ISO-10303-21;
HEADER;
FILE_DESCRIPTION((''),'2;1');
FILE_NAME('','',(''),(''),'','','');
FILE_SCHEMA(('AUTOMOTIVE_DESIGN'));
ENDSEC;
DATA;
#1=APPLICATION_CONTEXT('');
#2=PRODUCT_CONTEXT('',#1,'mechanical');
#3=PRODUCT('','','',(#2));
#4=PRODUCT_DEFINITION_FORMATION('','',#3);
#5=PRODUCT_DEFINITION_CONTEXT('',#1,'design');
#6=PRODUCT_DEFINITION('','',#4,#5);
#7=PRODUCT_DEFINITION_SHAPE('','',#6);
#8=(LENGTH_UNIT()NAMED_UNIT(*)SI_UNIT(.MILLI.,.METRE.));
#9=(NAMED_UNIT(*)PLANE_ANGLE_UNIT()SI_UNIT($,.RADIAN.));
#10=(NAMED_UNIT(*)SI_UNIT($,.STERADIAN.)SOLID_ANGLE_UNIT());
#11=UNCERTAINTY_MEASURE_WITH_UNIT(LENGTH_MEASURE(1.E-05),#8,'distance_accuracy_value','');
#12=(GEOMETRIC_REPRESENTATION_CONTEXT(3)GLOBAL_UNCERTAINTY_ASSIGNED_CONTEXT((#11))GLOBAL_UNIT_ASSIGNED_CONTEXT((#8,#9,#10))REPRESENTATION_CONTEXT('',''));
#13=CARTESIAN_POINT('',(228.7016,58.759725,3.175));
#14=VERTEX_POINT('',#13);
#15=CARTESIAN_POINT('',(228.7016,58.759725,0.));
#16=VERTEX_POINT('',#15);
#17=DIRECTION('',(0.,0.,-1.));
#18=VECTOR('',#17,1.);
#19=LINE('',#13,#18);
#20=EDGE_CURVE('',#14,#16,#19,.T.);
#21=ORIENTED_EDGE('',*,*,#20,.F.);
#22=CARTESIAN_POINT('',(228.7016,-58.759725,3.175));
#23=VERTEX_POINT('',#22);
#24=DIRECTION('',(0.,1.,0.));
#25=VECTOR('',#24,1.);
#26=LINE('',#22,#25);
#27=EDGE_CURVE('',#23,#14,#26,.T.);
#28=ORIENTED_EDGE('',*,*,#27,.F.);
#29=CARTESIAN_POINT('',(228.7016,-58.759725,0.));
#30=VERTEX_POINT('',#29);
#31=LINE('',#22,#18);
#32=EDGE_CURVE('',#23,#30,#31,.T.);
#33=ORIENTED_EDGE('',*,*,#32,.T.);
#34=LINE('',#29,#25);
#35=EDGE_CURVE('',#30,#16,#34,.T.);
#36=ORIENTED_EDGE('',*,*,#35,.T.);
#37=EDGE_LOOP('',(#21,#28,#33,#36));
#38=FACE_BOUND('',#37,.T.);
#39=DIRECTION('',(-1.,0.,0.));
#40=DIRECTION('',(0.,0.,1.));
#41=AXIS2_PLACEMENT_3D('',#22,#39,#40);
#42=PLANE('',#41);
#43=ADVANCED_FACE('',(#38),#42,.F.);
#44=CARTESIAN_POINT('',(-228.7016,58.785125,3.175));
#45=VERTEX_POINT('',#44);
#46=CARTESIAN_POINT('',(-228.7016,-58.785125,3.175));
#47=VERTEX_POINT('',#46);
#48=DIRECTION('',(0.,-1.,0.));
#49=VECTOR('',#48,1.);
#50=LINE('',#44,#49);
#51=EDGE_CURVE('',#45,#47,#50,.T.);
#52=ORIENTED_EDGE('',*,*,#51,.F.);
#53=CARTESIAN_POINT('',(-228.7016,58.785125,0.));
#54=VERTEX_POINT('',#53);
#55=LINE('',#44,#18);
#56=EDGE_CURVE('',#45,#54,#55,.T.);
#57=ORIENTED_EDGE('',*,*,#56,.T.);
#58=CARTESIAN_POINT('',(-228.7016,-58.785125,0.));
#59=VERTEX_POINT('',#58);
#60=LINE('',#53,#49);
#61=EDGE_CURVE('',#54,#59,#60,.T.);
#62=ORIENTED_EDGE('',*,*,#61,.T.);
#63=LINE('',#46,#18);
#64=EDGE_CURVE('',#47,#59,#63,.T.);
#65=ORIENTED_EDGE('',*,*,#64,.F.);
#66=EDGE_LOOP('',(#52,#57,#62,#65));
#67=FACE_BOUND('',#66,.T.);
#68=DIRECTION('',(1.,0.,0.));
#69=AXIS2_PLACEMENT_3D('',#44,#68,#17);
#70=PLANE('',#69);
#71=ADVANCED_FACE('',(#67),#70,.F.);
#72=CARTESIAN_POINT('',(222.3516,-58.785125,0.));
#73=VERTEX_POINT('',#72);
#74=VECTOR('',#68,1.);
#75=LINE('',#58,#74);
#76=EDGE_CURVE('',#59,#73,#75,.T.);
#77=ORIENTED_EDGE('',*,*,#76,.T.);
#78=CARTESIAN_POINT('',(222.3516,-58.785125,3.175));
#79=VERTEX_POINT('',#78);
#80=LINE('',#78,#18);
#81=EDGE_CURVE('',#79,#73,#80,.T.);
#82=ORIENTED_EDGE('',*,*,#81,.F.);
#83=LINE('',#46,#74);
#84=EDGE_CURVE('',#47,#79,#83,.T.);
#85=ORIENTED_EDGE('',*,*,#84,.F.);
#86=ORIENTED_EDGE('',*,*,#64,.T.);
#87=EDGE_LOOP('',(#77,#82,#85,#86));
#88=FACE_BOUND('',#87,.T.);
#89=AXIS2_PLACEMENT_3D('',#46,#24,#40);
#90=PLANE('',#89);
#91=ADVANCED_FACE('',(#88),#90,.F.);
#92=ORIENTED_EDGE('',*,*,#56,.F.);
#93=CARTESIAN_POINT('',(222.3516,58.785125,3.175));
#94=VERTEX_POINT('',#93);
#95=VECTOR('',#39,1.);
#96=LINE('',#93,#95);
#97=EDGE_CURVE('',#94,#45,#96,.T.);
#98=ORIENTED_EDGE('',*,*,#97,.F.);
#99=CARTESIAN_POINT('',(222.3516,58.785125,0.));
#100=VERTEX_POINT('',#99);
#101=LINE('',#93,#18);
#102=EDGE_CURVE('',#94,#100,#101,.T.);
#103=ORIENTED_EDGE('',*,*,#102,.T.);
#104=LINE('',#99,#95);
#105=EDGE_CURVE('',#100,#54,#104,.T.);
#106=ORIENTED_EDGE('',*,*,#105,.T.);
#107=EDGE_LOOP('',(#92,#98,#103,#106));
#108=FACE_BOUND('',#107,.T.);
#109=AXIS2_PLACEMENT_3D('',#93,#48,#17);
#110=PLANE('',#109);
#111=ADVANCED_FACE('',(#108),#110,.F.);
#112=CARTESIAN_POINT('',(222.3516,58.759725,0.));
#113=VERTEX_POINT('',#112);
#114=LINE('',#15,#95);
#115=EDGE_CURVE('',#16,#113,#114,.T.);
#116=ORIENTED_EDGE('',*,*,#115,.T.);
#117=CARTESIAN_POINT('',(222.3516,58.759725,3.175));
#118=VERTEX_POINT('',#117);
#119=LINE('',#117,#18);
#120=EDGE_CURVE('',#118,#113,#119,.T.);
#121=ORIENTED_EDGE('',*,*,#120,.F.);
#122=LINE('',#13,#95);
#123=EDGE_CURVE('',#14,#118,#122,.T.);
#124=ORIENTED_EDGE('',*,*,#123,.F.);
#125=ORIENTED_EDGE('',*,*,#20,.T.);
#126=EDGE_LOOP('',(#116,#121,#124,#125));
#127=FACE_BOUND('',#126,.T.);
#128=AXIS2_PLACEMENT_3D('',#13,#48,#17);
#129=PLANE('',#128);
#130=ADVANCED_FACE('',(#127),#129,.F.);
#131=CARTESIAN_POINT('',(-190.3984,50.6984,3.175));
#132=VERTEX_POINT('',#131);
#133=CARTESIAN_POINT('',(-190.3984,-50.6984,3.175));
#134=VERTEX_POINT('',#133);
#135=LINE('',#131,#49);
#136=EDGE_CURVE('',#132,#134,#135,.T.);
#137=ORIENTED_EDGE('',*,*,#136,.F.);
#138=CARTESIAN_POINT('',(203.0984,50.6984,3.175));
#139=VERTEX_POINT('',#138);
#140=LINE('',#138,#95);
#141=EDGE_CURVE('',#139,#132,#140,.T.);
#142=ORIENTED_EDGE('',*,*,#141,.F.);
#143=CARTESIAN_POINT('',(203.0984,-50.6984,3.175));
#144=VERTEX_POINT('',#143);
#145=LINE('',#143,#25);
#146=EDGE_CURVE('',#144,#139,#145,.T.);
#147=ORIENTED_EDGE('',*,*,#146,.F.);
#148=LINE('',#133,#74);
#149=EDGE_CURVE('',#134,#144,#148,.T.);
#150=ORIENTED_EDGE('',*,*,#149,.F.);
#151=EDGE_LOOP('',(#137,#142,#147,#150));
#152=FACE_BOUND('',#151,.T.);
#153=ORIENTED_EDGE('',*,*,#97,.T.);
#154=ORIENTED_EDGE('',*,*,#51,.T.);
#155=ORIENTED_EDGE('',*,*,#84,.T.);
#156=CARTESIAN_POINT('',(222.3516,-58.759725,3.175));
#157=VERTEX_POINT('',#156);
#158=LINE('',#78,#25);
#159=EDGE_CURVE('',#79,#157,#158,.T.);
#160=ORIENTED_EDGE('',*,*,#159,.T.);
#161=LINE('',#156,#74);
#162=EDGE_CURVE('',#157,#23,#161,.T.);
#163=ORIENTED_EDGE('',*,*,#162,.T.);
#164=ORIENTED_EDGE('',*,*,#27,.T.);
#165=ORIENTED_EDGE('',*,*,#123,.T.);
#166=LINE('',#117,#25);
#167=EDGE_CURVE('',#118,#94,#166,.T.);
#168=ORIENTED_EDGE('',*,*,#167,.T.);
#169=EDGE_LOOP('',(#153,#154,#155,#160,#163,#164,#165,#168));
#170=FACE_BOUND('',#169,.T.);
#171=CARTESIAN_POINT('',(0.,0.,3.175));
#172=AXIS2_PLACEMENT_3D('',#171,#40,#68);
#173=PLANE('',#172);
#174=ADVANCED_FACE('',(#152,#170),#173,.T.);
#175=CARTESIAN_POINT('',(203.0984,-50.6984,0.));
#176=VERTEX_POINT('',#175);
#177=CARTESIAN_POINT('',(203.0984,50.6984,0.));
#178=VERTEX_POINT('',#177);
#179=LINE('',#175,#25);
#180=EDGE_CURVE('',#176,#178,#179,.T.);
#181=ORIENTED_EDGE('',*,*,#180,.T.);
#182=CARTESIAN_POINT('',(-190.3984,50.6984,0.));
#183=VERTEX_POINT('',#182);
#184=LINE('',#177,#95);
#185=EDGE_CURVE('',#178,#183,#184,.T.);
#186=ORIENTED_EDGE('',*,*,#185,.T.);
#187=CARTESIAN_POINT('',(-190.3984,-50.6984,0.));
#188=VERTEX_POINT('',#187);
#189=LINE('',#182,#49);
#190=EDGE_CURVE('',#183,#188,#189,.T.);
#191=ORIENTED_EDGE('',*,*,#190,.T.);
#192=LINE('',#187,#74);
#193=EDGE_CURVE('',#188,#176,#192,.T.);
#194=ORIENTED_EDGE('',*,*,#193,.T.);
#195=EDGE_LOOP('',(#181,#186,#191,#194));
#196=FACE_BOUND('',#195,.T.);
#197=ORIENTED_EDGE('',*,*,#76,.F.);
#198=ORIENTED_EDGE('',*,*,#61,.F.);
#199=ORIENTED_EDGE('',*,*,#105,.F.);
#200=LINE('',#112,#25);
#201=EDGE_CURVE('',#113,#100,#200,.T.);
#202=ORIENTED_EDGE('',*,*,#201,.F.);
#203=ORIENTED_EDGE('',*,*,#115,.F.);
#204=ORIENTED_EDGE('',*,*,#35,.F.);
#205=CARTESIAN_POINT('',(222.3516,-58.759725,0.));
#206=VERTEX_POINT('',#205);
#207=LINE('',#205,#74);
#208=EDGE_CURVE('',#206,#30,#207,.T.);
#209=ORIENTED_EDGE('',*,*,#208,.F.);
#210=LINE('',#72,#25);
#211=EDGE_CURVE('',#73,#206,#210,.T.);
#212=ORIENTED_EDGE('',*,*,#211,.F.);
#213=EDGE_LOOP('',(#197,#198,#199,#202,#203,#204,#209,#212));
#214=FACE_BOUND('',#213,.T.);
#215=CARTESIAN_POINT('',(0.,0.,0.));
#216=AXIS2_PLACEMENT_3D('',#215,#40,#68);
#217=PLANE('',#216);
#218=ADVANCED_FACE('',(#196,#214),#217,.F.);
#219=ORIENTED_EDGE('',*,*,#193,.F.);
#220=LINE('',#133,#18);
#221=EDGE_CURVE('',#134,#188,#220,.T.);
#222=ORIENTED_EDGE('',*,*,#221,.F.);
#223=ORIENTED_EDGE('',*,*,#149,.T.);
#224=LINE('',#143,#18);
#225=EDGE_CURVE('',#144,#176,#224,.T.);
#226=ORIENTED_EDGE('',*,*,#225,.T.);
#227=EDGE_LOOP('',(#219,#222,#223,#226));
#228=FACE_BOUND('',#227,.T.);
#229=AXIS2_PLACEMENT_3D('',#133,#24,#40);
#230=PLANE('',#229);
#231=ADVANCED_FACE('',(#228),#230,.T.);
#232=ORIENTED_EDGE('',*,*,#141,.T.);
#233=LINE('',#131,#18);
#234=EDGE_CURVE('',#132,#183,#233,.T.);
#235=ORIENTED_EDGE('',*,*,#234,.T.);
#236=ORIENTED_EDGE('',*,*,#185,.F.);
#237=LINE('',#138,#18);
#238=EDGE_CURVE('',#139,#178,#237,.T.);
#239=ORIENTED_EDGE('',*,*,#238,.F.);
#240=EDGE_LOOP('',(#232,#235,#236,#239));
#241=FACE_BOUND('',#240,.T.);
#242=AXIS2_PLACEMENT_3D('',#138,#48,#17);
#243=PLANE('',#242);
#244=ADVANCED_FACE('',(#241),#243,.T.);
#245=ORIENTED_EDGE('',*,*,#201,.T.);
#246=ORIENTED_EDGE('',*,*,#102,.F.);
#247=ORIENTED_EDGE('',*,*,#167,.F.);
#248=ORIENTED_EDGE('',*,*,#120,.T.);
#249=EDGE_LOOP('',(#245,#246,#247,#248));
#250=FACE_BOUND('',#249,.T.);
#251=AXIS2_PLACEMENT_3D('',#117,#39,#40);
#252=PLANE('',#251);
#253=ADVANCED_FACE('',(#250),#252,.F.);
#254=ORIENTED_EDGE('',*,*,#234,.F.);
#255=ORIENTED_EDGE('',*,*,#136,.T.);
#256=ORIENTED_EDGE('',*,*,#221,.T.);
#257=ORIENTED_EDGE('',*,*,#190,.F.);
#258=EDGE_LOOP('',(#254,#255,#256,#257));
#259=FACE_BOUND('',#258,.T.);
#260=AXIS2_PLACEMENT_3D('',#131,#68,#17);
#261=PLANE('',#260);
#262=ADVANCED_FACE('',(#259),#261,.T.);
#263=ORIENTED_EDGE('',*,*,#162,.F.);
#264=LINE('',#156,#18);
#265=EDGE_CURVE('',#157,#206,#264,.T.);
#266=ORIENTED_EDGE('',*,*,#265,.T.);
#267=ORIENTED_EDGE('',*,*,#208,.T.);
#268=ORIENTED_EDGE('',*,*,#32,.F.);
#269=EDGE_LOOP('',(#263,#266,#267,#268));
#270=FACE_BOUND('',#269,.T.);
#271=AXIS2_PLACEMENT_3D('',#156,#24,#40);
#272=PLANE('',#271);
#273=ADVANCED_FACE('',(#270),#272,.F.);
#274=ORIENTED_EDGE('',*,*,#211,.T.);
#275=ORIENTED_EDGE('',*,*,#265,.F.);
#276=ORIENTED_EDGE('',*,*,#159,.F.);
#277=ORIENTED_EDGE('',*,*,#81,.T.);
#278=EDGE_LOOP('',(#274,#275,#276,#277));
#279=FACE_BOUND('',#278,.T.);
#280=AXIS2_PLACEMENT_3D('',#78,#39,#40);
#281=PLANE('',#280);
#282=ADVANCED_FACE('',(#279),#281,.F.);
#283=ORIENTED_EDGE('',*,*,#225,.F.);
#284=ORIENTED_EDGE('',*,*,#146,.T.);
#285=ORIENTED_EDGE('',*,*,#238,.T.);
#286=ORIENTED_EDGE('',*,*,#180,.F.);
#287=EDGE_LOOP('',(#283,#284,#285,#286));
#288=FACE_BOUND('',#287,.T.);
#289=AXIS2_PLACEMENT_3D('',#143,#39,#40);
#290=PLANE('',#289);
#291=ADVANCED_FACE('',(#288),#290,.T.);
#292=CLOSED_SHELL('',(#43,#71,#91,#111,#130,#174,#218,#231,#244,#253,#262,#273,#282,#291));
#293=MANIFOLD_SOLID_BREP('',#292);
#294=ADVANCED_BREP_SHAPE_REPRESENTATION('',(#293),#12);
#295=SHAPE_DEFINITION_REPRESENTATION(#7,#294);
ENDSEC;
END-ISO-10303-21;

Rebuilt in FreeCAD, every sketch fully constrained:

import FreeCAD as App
import Part
import Sketcher
Q = App.Units.Quantity


def add_polygon(sketch, points):
    """Adds a closed chain of lines whose ends are joined by coincident constraints."""
    first, n = sketch.GeometryCount, len(points)
    for a, b in zip(points, points[1:] + points[:1]):
        sketch.addGeometry(Part.LineSegment(App.Vector(*a, 0), App.Vector(*b, 0)), False)
    for i in range(n):
        sketch.addConstraint(Sketcher.Constraint("Coincident", first + i, 2, first + (i + 1) % n, 1))

doc = App.newDocument("Part")
body = doc.addObject("PartDesign::Body", "Body")

# Sketch on XY plane
sketch1 = body.newObject("Sketcher::SketchObject", "Sketch")
sketch1.AttachmentSupport = (doc.getObject("XY_Plane"), [""])
sketch1.MapMode = "FlatFace"
add_polygon(sketch1, [(222.3516, 58.785125), (-228.7016, 58.785125), (-228.7016, -58.785125), (222.3516, -58.785125), (222.3516, -58.759725), (228.7016, -58.759725), (228.7016, 58.759725), (222.3516, 58.759725)])  # lines 0-7
add_polygon(sketch1, [(203.0984, -50.6984), (-190.3984, -50.6984), (-190.3984, 50.6984), (203.0984, 50.6984)])  # lines 8-11
sketch1.addConstraint(Sketcher.Constraint("Horizontal", 0))
sketch1.addConstraint(Sketcher.Constraint("Vertical", 1))
sketch1.addConstraint(Sketcher.Constraint("Horizontal", 2))
sketch1.addConstraint(Sketcher.Constraint("Vertical", 3))
sketch1.addConstraint(Sketcher.Constraint("Horizontal", 4))
sketch1.addConstraint(Sketcher.Constraint("Vertical", 5))
sketch1.addConstraint(Sketcher.Constraint("Horizontal", 6))
sketch1.addConstraint(Sketcher.Constraint("Vertical", 7))
sketch1.addConstraint(Sketcher.Constraint("Horizontal", 8))
sketch1.addConstraint(Sketcher.Constraint("Vertical", 9))
sketch1.addConstraint(Sketcher.Constraint("Horizontal", 10))
sketch1.addConstraint(Sketcher.Constraint("Vertical", 11))
sketch1.addConstraint(Sketcher.Constraint("Symmetric", 3, 2, 6, 2, -1))
sketch1.addConstraint(Sketcher.Constraint("Equal", 3, 7))
sketch1.addConstraint(Sketcher.Constraint("DistanceX", 4, 1, 4, 2, Q("0.25 in")))
sketch1.addConstraint(Sketcher.Constraint("DistanceX", 8, 2, 4, 2, Q("16.5 in")))
sketch1.addConstraint(Sketcher.Constraint("DistanceX", 0, 2, 0, 1, Q("17.758 in")))
sketch1.addConstraint(Sketcher.Constraint("DistanceX", 8, 2, 8, 1, Q("15.492 in")))
sketch1.addConstraint(Sketcher.Constraint("DistanceY", 3, 1, 3, 2, Q("0.001 in")))
sketch1.addConstraint(Sketcher.Constraint("DistanceY", 9, 1, 9, 2, Q("3.992 in")))
sketch1.addConstraint(Sketcher.Constraint("DistanceX", 0, 2, -1, 1, Q("9.004 in")))
sketch1.addConstraint(Sketcher.Constraint("DistanceY", 8, 2, -1, 1, Q("1.996 in")))
sketch1.addConstraint(Sketcher.Constraint("DistanceY", 1, 2, 1, 1, Q("117.57025 mm")))
pad1 = body.newObject("PartDesign::Pad", "Pad")
pad1.Profile = sketch1
pad1.Length = Q("0.125 in")

doc.recompute()
